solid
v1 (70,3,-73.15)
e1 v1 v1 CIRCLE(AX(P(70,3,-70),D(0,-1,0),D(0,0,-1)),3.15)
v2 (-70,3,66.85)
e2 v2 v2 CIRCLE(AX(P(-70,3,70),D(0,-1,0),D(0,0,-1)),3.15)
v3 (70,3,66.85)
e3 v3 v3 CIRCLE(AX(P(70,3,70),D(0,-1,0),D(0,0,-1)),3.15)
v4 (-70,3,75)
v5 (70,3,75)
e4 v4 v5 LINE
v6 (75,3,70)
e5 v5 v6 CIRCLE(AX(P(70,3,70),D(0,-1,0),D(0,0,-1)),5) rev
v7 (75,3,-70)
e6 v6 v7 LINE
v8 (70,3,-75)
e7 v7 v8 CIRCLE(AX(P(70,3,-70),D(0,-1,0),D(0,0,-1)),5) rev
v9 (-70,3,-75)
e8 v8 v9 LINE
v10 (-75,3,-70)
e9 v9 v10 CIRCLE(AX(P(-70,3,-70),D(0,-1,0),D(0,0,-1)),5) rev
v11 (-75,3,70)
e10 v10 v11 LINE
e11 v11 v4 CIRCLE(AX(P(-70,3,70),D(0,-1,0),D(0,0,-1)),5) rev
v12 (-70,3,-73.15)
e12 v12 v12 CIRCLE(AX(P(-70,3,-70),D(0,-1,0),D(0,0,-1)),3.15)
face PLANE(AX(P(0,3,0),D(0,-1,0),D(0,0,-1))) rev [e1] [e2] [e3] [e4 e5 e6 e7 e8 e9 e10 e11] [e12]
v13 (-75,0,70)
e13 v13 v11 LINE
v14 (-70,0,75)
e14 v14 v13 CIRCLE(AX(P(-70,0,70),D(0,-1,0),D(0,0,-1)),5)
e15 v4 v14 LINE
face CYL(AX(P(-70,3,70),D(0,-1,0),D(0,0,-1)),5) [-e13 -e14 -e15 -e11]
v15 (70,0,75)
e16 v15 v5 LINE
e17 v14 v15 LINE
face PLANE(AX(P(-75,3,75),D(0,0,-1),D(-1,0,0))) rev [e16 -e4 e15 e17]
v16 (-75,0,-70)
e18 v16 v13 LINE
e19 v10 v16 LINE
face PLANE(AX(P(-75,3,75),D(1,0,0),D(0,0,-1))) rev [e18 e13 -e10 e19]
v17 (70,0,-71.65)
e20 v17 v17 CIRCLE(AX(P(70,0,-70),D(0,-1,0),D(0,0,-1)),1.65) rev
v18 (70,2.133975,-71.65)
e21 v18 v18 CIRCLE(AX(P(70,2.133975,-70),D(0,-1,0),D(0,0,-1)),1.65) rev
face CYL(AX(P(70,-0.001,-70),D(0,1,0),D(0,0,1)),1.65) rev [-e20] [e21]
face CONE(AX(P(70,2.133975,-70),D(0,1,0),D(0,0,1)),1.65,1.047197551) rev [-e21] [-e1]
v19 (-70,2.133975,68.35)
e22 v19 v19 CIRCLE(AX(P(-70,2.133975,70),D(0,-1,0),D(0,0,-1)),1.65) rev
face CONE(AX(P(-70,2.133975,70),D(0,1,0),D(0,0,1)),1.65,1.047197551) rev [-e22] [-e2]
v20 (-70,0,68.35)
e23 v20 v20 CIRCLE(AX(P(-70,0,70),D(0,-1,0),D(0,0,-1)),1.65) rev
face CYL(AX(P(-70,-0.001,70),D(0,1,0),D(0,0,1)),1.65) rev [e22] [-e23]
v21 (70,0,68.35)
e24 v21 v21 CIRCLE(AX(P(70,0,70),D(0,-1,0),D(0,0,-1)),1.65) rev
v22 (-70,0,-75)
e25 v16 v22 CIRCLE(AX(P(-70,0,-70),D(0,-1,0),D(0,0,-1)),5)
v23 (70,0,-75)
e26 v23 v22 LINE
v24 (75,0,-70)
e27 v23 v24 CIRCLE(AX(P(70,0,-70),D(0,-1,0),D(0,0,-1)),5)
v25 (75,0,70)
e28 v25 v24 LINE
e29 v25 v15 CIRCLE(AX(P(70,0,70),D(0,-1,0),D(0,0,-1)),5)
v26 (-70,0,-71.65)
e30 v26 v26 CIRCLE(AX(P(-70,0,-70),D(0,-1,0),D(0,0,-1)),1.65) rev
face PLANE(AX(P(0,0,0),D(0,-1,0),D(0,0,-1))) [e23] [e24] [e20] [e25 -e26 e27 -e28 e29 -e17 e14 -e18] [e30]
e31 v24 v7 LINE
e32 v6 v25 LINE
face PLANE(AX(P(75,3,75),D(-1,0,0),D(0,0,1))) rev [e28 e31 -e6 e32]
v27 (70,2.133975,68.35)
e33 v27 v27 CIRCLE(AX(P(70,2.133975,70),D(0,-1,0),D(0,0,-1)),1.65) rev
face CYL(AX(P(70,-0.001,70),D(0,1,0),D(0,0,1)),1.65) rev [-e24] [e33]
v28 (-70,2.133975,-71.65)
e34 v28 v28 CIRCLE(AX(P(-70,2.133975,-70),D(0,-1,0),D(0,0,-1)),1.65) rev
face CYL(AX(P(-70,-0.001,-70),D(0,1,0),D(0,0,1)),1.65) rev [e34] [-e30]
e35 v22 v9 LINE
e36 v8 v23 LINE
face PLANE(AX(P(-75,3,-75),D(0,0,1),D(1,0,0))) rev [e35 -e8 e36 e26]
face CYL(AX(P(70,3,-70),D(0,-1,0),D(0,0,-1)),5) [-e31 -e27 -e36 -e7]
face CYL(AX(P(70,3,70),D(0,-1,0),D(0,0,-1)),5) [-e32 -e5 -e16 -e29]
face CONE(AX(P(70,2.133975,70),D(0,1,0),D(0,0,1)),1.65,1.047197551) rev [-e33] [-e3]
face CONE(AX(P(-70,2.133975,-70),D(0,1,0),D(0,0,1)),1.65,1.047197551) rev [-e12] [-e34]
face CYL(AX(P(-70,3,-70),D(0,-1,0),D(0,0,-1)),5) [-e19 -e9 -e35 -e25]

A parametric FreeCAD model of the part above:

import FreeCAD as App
import Part
import Sketcher


def edges_at(feature, points):
    """Names of the edges that pass closest to the given points."""
    edges = feature.Shape.Edges
    near = lambda p: min(range(len(edges)), key=lambda i: edges[i].distToShape(Part.Vertex(*p))[0])
    return sorted({f"Edge{near(p) + 1}" for p in points})


def add_polygon(sketch, points):
    """Adds a closed chain of lines whose ends are joined by coincident constraints."""
    first, n = sketch.GeometryCount, len(points)
    for a, b in zip(points, points[1:] + points[:1]):
        sketch.addGeometry(Part.LineSegment(App.Vector(*a, 0), App.Vector(*b, 0)), False)
    for i in range(n):
        sketch.addConstraint(Sketcher.Constraint("Coincident", first + i, 2, first + (i + 1) % n, 1))

doc = App.newDocument("Part")
body = doc.addObject("PartDesign::Body", "Body")

# Sketch on XZ plane
sketch1 = body.newObject("Sketcher::SketchObject", "Sketch")
sketch1.AttachmentSupport = (doc.getObject("XZ_Plane"), [""])
sketch1.MapMode = "FlatFace"
add_polygon(sketch1, [(-75, -75), (-75, 75), (75, 75), (75, -75)])  # lines 0-3
sketch1.addConstraint([
    Sketcher.Constraint("Vertical", 0),
    Sketcher.Constraint("Horizontal", 1),
    Sketcher.Constraint("Vertical", 2),
    Sketcher.Constraint("Horizontal", 3),
    Sketcher.Constraint("Symmetric", 0, 2, 2, 2, -1, 1),
    Sketcher.Constraint("Equal", 3, 0),
    Sketcher.Constraint("DistanceX", 1, 1, 1, 2, 150.0),
])
pad1 = body.newObject("PartDesign::Pad", "Pad")
pad1.Profile = sketch1
pad1.Length = 3
pad1.Reversed = True

# Sketch on XZ plane
sketch2 = body.newObject("Sketcher::SketchObject", "Sketch001")
sketch2.AttachmentSupport = (doc.getObject("XZ_Plane"), [""])
sketch2.MapMode = "FlatFace"
sketch2.AttachmentOffset = App.Placement(App.Vector(0, 0, -3), App.Rotation())
sketch2.addGeometry(Part.Circle(App.Vector(-70, -70, 0), App.Vector(0, 0, 1), 1.6), False)
sketch2.addConstraint([
    Sketcher.Constraint("Diameter", 0, 3.3),
    Sketcher.Constraint("DistanceX", 0, 3, -1, 1, 70.0),
    Sketcher.Constraint("DistanceY", 0, 3, -1, 1, 70.0),
])
pocket1 = body.newObject("PartDesign::Pocket", "Pocket")
pocket1.Profile = sketch2
pocket1.Type = "UpToFirst"
pocket1.Reversed = True

# Sketch on XZ plane
sketch3 = body.newObject("Sketcher::SketchObject", "Sketch002")
sketch3.AttachmentSupport = (doc.getObject("XZ_Plane"), [""])
sketch3.MapMode = "FlatFace"
sketch3.AttachmentOffset = App.Placement(App.Vector(0, 0, -3), App.Rotation())
sketch3.addGeometry(Part.Circle(App.Vector(70, -70, 0), App.Vector(0, 0, 1), 1.6), False)
sketch3.addConstraint([
    Sketcher.Constraint("Diameter", 0, 3.3),
    Sketcher.Constraint("DistanceX", -1, 1, 0, 3, 70.0),
    Sketcher.Constraint("DistanceY", 0, 3, -1, 1, 70.0),
])
pocket2 = body.newObject("PartDesign::Pocket", "Pocket001")
pocket2.Profile = sketch3
pocket2.Type = "UpToFirst"
pocket2.Reversed = True

# Sketch on XZ plane
sketch4 = body.newObject("Sketcher::SketchObject", "Sketch003")
sketch4.AttachmentSupport = (doc.getObject("XZ_Plane"), [""])
sketch4.MapMode = "FlatFace"
sketch4.AttachmentOffset = App.Placement(App.Vector(0, 0, -3), App.Rotation())
sketch4.addGeometry(Part.Circle(App.Vector(70, 70, 0), App.Vector(0, 0, 1), 1.6), False)
sketch4.addConstraint([
    Sketcher.Constraint("Diameter", 0, 3.3),
    Sketcher.Constraint("DistanceX", -1, 1, 0, 3, 70.0),
    Sketcher.Constraint("DistanceY", -1, 1, 0, 3, 70.0),
])
pocket3 = body.newObject("PartDesign::Pocket", "Pocket002")
pocket3.Profile = sketch4
pocket3.Type = "UpToFirst"
pocket3.Reversed = True

# Sketch on XZ plane
sketch5 = body.newObject("Sketcher::SketchObject", "Sketch004")
sketch5.AttachmentSupport = (doc.getObject("XZ_Plane"), [""])
sketch5.MapMode = "FlatFace"
sketch5.AttachmentOffset = App.Placement(App.Vector(0, 0, -3), App.Rotation())
sketch5.addGeometry(Part.Circle(App.Vector(-70, 70, 0), App.Vector(0, 0, 1), 1.6), False)
sketch5.addConstraint([
    Sketcher.Constraint("Diameter", 0, 3.3),
    Sketcher.Constraint("DistanceX", 0, 3, -1, 1, 70.0),
    Sketcher.Constraint("DistanceY", -1, 1, 0, 3, 70.0),
])
pocket4 = body.newObject("PartDesign::Pocket", "Pocket003")
pocket4.Profile = sketch5
pocket4.Type = "UpToFirst"
pocket4.Reversed = True
doc.recompute()

chamfer = body.newObject("PartDesign::Chamfer", "Chamfer")
chamfer.Base = (pocket4, edges_at(pocket4, [
    (-71.65, 3, 70),
    (68.35, 3, 70),
    (68.35, 3, -70),
    (-71.65, 3, -70),
]))
chamfer.ChamferType = "Two distances"
chamfer.Size = 1.5
chamfer.Size2 = 0.866025
doc.recompute()

fillet = body.newObject("PartDesign::Fillet", "Fillet")
fillet.Base = (chamfer, edges_at(chamfer, [
    (75, 1.5, 75),
    (-75, 1.5, 75),
    (-75, 1.5, -75),
    (75, 1.5, -75),
]))
fillet.Radius = 5

doc.recompute()
